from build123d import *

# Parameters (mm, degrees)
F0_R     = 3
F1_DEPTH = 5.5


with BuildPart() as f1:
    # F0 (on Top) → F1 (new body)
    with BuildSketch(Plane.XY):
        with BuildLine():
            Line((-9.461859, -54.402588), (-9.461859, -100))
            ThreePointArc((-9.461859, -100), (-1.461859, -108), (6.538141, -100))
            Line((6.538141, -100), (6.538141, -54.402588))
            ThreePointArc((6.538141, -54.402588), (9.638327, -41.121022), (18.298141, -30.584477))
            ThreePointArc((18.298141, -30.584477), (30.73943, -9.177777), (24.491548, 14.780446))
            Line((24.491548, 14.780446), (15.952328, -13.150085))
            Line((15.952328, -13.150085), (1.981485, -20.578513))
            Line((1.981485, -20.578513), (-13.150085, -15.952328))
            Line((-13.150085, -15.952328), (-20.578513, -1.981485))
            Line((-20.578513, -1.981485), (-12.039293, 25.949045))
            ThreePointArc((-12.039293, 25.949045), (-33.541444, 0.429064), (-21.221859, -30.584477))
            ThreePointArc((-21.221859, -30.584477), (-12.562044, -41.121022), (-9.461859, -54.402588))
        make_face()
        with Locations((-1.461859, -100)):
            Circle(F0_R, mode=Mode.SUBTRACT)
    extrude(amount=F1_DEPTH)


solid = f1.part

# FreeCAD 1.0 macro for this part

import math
import FreeCAD as App
import Part
import Sketcher
Q = App.Units.Quantity

doc = App.newDocument("Part")
body = doc.addObject("PartDesign::Body", "Body")

# Sketch on XY plane
sketch1 = body.newObject("Sketcher::SketchObject", "Sketch")
sketch1.AttachmentSupport = (doc.getObject("XY_Plane"), [""])
sketch1.MapMode = "FlatFace"
sketch1.addGeometry([
    Part.LineSegment(App.Vector(-9.461859, -54.402588, 0), App.Vector(-9.461859, -100, 0)),  # 0
    Part.ArcOfCircle(Part.Circle(App.Vector(-1.461859, -100, 0), App.Vector(0, 0, 1), 8), math.radians(180), math.radians(360)),  # 1
    Part.LineSegment(App.Vector(6.538141, -100, 0), App.Vector(6.538141, -54.402588, 0)),  # 2
    Part.ArcOfCircle(Part.Circle(App.Vector(36.538144, -54.402589, 0), App.Vector(0, 0, 1), 30.000003), math.radians(127.445032), math.radians(179.999998)),  # 3
    Part.ArcOfCircle(Part.Circle(App.Vector(-1.461856, -4.781524, 0), App.Vector(0, 0, 1), 32.499998), math.radians(-52.554974), math.radians(37.006586)),  # 4
    Part.LineSegment(App.Vector(24.491548, 14.780446, 0), App.Vector(15.952328, -13.150085, 0)),  # 5
    Part.LineSegment(App.Vector(15.952328, -13.150085, 0), App.Vector(1.981485, -20.578513, 0)),  # 6
    Part.LineSegment(App.Vector(1.981485, -20.578513, 0), App.Vector(-13.150085, -15.952328, 0)),  # 7
    Part.LineSegment(App.Vector(-13.150085, -15.952328, 0), App.Vector(-20.578513, -1.981485, 0)),  # 8
    Part.LineSegment(App.Vector(-20.578513, -1.981485, 0), App.Vector(-12.039293, 25.949045, 0)),  # 9
    Part.ArcOfCircle(Part.Circle(App.Vector(-1.46186, -4.781524, 0), App.Vector(0, 0, 1), 32.499999), math.radians(108.993416), math.radians(232.55497)),  # 10
    Part.ArcOfCircle(Part.Circle(App.Vector(-39.461854, -54.402585, 0), App.Vector(0, 0, 1), 29.999995), math.radians(-0.000005), math.radians(52.554975)),  # 11
    Part.Circle(App.Vector(-1.461859, -100, 0), App.Vector(0, 0, 1), 3),  # 12
], False)
sketch1.addConstraint([
    Sketcher.Constraint("Tangent", 0, 2, 1, 1),
    Sketcher.Constraint("Tangent", 1, 2, 2, 1),
    Sketcher.Constraint("Tangent", 2, 2, 3, 2),
    Sketcher.Constraint("Tangent", 3, 1, 4, 1),
    Sketcher.Constraint("Coincident", 4, 2, 5, 1),
    Sketcher.Constraint("Coincident", 5, 2, 6, 1),
    Sketcher.Constraint("Coincident", 6, 2, 7, 1),
    Sketcher.Constraint("Coincident", 7, 2, 8, 1),
    Sketcher.Constraint("Coincident", 8, 2, 9, 1),
    Sketcher.Constraint("Coincident", 9, 2, 10, 1),
    Sketcher.Constraint("Tangent", 10, 2, 11, 2),
    Sketcher.Constraint("Tangent", 11, 1, 0, 1),
    Sketcher.Constraint("Vertical", 0),
    Sketcher.Constraint("Vertical", 2),
    Sketcher.Constraint("Coincident", 10, 3, 4, 3),
    Sketcher.Constraint("Coincident", 12, 3, 1, 3),
    Sketcher.Constraint("Equal", 4, 10),
    Sketcher.Constraint("Perpendicular", 5, 7),
    Sketcher.Constraint("Perpendicular", 6, 8),
    Sketcher.Constraint("Perpendicular", 7, 9),
    Sketcher.Constraint("Horizontal", 3, 1, 10, 2),
    Sketcher.Constraint("Horizontal", 2, 2, 11, 1),
    Sketcher.Constraint("Equal", 6, 7),
    Sketcher.Constraint("Equal", 7, 8),
    Sketcher.Constraint("Equal", 5, 9),
    Sketcher.Constraint("Diameter", 12, Q("6 mm")),
    Sketcher.Constraint("Radius", 1, Q("8 mm")),
    Sketcher.Constraint("Radius", 10, Q("32.499999 mm")),
    Sketcher.Constraint("Angle", 5, Q("-106.999999 deg")),
    Sketcher.Constraint("Angle", 6, Q("-152.000003 deg")),
    Sketcher.Constraint("DistanceY", 1, 3, -1, 1, Q("100 mm")),
    Sketcher.Constraint("DistanceX", 4, 3, 3, 3, Q("37.999999 mm")),
    Sketcher.Constraint("DistanceX", 8, 2, 6, 2, Q("22.559998 mm")),
    Sketcher.Constraint("DistanceY", 0, 2, 0, 1, Q("45.597412 mm")),
    Sketcher.Constraint("DistanceX", 1, 3, -1, 1, Q("1.461859 mm")),
    Sketcher.Constraint("DistanceY", 3, 1, 5, 2, Q("17.434392 mm")),
])
pad1 = body.newObject("PartDesign::Pad", "Pad")
pad1.Profile = sketch1
pad1.Length = 5.5

doc.recompute()
